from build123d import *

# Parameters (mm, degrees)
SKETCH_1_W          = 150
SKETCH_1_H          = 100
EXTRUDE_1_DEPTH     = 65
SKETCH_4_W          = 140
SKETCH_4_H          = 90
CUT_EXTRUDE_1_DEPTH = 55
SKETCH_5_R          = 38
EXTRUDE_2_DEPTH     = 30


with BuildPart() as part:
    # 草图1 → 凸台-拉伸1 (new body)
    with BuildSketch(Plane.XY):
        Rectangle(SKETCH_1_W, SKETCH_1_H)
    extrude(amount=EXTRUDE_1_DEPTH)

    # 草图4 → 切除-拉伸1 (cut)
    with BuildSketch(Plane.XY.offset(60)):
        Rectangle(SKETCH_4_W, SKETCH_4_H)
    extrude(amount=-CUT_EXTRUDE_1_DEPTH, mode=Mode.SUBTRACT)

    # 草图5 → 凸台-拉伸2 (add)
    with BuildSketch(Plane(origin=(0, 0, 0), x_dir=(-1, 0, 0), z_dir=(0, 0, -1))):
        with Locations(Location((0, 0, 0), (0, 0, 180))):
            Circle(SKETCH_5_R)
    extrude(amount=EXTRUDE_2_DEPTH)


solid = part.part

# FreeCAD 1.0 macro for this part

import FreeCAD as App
import Part
import Sketcher
from FreeCAD import Vector
Q = App.Units.Quantity

doc = App.newDocument("Part")
body = doc.addObject("PartDesign::Body", "Body")

sketch1 = doc.addObject("Sketcher::SketchObject", "Sketch")
body.addObject(sketch1)
sketch1.AttachmentSupport = (doc.XY_Plane, [""])
sketch1.MapMode = "FlatFace"
sketch1.addGeometry([
    Part.LineSegment(Vector(-75, 50, 0), Vector(-75, -50, 0)),
    Part.LineSegment(Vector(-75, -50, 0), Vector(75, -50, 0)),
    Part.LineSegment(Vector(75, -50, 0), Vector(75, 50, 0)),
    Part.LineSegment(Vector(75, 50, 0), Vector(-75, 50, 0)),
], False)
sketch1.addConstraint([
    Sketcher.Constraint("Coincident", 0, 2, 1, 1),
    Sketcher.Constraint("Coincident", 1, 2, 2, 1),
    Sketcher.Constraint("Coincident", 2, 2, 3, 1),
    Sketcher.Constraint("Coincident", 3, 2, 0, 1),
    Sketcher.Constraint("Vertical", 0),
    Sketcher.Constraint("Horizontal", 1),
    Sketcher.Constraint("Vertical", 2),
    Sketcher.Constraint("Horizontal", 3),
    Sketcher.Constraint("Symmetric", 0, 2, 2, 2, -1, 1),
    Sketcher.Constraint("DistanceX", 1, 1, 1, 2, Q("150 mm")),
    Sketcher.Constraint("DistanceY", 0, 2, 0, 1, Q("100 mm")),
])
pad1 = doc.addObject("PartDesign::Pad", "Pad")
body.addObject(pad1)
pad1.Profile = sketch1
pad1.Length = 65

sketch2 = doc.addObject("Sketcher::SketchObject", "Sketch001")
body.addObject(sketch2)
sketch2.AttachmentSupport = (doc.XY_Plane, [""])
sketch2.MapMode = "FlatFace"
sketch2.AttachmentOffset = App.Placement(Vector(0, 0, 60), App.Rotation())
sketch2.addGeometry([
    Part.LineSegment(Vector(-70, 45, 0), Vector(-70, -45, 0)),
    Part.LineSegment(Vector(-70, -45, 0), Vector(70, -45, 0)),
    Part.LineSegment(Vector(70, -45, 0), Vector(70, 45, 0)),
    Part.LineSegment(Vector(70, 45, 0), Vector(-70, 45, 0)),
], False)
sketch2.addConstraint([
    Sketcher.Constraint("Coincident", 0, 2, 1, 1),
    Sketcher.Constraint("Coincident", 1, 2, 2, 1),
    Sketcher.Constraint("Coincident", 2, 2, 3, 1),
    Sketcher.Constraint("Coincident", 3, 2, 0, 1),
    Sketcher.Constraint("Vertical", 0),
    Sketcher.Constraint("Horizontal", 1),
    Sketcher.Constraint("Vertical", 2),
    Sketcher.Constraint("Horizontal", 3),
    Sketcher.Constraint("Symmetric", 0, 2, 2, 2, -1, 1),
    Sketcher.Constraint("DistanceX", 1, 1, 1, 2, Q("140 mm")),
    Sketcher.Constraint("DistanceY", 0, 2, 0, 1, Q("90 mm")),
])
pocket1 = doc.addObject("PartDesign::Pocket", "Pocket")
body.addObject(pocket1)
pocket1.Profile = sketch2
pocket1.Length = 55

sketch3 = doc.addObject("Sketcher::SketchObject", "Sketch002")
body.addObject(sketch3)
sketch3.AttachmentSupport = (doc.XY_Plane, [""])
sketch3.MapMode = "FlatFace"
sketch3.addGeometry(Part.Circle(Vector(0, 0, 0), Vector(0, 0, 1), 38), False)
sketch3.addConstraint([
    Sketcher.Constraint("Coincident", 0, 3, -1, 1),
    Sketcher.Constraint("Diameter", 0, Q("76 mm")),
])
pad2 = doc.addObject("PartDesign::Pad", "Pad001")
body.addObject(pad2)
pad2.Profile = sketch3
pad2.Length = 30
pad2.Reversed = True

doc.recompute()
